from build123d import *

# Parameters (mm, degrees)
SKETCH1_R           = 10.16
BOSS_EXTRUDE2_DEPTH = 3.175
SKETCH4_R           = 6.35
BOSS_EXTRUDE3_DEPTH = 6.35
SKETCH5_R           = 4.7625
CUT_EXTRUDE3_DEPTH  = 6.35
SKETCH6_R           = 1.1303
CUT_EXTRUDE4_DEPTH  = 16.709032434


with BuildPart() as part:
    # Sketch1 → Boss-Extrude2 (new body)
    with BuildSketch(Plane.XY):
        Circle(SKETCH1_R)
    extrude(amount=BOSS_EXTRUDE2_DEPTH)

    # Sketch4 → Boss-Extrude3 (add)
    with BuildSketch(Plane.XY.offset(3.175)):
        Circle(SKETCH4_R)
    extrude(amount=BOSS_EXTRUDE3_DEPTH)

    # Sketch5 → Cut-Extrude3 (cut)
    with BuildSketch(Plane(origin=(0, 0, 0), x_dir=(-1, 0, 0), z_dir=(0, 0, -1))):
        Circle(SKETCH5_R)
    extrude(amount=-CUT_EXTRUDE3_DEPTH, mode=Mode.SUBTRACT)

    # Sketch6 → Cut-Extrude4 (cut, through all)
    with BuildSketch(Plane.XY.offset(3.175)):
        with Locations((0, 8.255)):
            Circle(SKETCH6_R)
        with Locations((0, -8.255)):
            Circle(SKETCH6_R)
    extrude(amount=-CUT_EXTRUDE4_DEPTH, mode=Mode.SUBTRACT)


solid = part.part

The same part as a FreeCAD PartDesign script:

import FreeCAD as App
import Part
import Sketcher
Q = App.Units.Quantity

doc = App.newDocument("Part")
body = doc.addObject("PartDesign::Body", "Body")

# Sketch on XY plane
sketch1 = body.newObject("Sketcher::SketchObject", "Sketch")
sketch1.AttachmentSupport = (doc.getObject("XY_Plane"), [""])
sketch1.MapMode = "FlatFace"
sketch1.addGeometry(Part.Circle(App.Vector(0, 0, 0), App.Vector(0, 0, 1), 10), False)
sketch1.addConstraint([
    Sketcher.Constraint("Coincident", 0, 3, -1, 1),
    Sketcher.Constraint("Diameter", 0, Q("0.8 in")),
])
pad1 = body.newObject("PartDesign::Pad", "Pad")
pad1.Profile = sketch1
pad1.Length = Q("0.125 in")

# Sketch on XY plane
sketch2 = body.newObject("Sketcher::SketchObject", "Sketch001")
sketch2.AttachmentSupport = (doc.getObject("XY_Plane"), [""])
sketch2.MapMode = "FlatFace"
sketch2.AttachmentOffset = App.Placement(App.Vector(0, 0, 0.125 * 25.4), App.Rotation())
sketch2.addGeometry(Part.Circle(App.Vector(0, 0, 0), App.Vector(0, 0, 1), 6), False)
sketch2.addConstraint([
    Sketcher.Constraint("Coincident", 0, 3, -1, 1),
    Sketcher.Constraint("Diameter", 0, Q("0.5 in")),
])
pad2 = body.newObject("PartDesign::Pad", "Pad001")
pad2.Profile = sketch2
pad2.Length = Q("0.25 in")

# Sketch on XY plane
sketch3 = body.newObject("Sketcher::SketchObject", "Sketch002")
sketch3.AttachmentSupport = (doc.getObject("XY_Plane"), [""])
sketch3.MapMode = "FlatFace"
sketch3.addGeometry(Part.Circle(App.Vector(0, 0, 0), App.Vector(0, 0, 1), 4.8), False)
sketch3.addConstraint([
    Sketcher.Constraint("Coincident", 0, 3, -1, 1),
    Sketcher.Constraint("Diameter", 0, Q("0.375 in")),
])
pocket1 = body.newObject("PartDesign::Pocket", "Pocket")
pocket1.Profile = sketch3
pocket1.Length = Q("0.25 in")
pocket1.Reversed = True

# Sketch on XY plane
sketch4 = body.newObject("Sketcher::SketchObject", "Sketch003")
sketch4.AttachmentSupport = (doc.getObject("XY_Plane"), [""])
sketch4.MapMode = "FlatFace"
sketch4.AttachmentOffset = App.Placement(App.Vector(0, 0, 0.125 * 25.4), App.Rotation())
sketch4.addGeometry([
    Part.Circle(App.Vector(0, 8.3, 0), App.Vector(0, 0, 1), 1.1),
    Part.Circle(App.Vector(0, -8.3, 0), App.Vector(0, 0, 1), 1.1),
], False)
sketch4.addConstraint([
    Sketcher.Constraint("Equal", 0, 1),
    Sketcher.Constraint("Symmetric", 0, 3, 1, 3, -1, 1),
    Sketcher.Constraint("PointOnObject", 0, 3, -2),
    Sketcher.Constraint("Diameter", 0, Q("0.089 in")),
    Sketcher.Constraint("DistanceY", 1, 3, 0, 3, Q("0.65 in")),
])
pocket2 = body.newObject("PartDesign::Pocket", "Pocket001")
pocket2.Profile = sketch4
pocket2.Type = "ThroughAll"

doc.recompute()
